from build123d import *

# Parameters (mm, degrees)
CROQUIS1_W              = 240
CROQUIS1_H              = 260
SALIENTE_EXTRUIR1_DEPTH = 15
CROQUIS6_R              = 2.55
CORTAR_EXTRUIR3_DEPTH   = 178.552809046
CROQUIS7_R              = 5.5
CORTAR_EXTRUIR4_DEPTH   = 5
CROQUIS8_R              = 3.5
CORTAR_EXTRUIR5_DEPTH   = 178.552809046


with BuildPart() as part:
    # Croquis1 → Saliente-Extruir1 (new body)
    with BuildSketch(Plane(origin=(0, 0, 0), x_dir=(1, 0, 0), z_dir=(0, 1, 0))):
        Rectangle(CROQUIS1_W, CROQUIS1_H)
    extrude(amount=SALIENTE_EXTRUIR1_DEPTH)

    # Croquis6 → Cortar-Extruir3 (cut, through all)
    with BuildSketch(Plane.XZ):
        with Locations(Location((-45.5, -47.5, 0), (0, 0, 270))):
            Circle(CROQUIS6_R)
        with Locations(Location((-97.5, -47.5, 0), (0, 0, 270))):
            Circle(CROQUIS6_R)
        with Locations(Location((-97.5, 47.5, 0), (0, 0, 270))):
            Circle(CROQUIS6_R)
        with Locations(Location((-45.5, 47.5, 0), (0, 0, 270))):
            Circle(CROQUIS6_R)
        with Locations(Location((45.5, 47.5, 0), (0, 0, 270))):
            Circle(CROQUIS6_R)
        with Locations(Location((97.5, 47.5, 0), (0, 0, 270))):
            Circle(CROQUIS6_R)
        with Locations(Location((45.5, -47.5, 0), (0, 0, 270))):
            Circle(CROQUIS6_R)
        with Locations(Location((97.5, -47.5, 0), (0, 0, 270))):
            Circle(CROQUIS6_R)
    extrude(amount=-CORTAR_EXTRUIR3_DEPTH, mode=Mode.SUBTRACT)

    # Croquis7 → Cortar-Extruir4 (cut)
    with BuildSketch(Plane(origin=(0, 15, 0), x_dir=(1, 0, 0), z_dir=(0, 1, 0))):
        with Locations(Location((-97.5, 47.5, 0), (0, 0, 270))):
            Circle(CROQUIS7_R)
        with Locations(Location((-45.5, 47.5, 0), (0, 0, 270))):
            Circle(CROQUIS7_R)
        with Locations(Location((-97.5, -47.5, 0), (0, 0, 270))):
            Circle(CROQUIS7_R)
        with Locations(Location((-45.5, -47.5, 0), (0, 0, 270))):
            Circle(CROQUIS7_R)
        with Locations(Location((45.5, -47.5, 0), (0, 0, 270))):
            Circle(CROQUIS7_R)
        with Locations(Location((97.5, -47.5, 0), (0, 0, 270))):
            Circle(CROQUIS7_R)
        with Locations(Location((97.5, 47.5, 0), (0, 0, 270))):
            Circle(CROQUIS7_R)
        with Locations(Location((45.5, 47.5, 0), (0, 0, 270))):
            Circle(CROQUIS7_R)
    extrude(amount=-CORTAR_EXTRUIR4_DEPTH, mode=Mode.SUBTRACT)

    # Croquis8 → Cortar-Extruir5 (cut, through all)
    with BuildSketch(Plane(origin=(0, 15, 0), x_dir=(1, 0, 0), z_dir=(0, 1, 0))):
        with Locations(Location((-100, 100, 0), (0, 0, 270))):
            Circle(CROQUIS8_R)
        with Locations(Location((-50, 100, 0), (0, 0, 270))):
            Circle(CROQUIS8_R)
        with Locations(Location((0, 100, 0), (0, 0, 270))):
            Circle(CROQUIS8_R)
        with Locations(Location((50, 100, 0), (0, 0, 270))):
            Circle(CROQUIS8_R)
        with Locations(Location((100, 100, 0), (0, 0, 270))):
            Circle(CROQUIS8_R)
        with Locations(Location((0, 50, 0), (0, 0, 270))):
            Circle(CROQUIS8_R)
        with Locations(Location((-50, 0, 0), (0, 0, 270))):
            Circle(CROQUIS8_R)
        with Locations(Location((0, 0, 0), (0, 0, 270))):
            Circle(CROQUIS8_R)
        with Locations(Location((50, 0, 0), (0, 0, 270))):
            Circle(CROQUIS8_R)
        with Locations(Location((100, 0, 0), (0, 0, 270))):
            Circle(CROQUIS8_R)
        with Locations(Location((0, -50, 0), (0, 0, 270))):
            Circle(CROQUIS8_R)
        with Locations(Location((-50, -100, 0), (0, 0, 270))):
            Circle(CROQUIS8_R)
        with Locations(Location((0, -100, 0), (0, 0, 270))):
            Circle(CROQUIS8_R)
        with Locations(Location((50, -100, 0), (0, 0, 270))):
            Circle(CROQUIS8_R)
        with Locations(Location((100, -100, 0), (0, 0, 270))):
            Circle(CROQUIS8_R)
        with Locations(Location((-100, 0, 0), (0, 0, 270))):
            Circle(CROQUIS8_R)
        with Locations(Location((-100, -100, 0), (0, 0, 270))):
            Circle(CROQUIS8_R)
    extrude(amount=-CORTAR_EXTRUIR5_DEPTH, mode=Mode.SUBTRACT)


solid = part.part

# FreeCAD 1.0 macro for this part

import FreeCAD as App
import Part
import Sketcher
from FreeCAD import Vector


def add_polygon(sketch, points):
    """Adds a closed chain of lines whose ends are joined by coincident constraints."""
    first, n = sketch.GeometryCount, len(points)
    for a, b in zip(points, points[1:] + points[:1]):
        sketch.addGeometry(Part.LineSegment(App.Vector(*a, 0), App.Vector(*b, 0)), False)
    for i in range(n):
        sketch.addConstraint(Sketcher.Constraint("Coincident", first + i, 2, first + (i + 1) % n, 1))

doc = App.newDocument("Part")
body = doc.addObject("PartDesign::Body", "Body")

# Sketch on XZ plane
sketch1 = body.newObject("Sketcher::SketchObject", "Sketch")
sketch1.AttachmentSupport = (doc.getObject("XZ_Plane"), [""])
sketch1.MapMode = "FlatFace"
add_polygon(sketch1, [(-120, -130), (-120, 130), (120, 130), (120, -130)])  # lines 0-3
sketch1.addConstraint([
    Sketcher.Constraint("Vertical", 0),
    Sketcher.Constraint("Horizontal", 1),
    Sketcher.Constraint("Vertical", 2),
    Sketcher.Constraint("Horizontal", 3),
    Sketcher.Constraint("Symmetric", 0, 2, 2, 2, -1, 1),
    Sketcher.Constraint("DistanceX", 1, 1, 1, 2, 240.0),
    Sketcher.Constraint("DistanceY", 0, 1, 0, 2, 260.0),
])
pad1 = body.newObject("PartDesign::Pad", "Pad")
pad1.Profile = sketch1
pad1.Length = 15
pad1.Reversed = True

# Sketch on XZ plane
sketch2 = body.newObject("Sketcher::SketchObject", "Sketch001")
sketch2.AttachmentSupport = (doc.getObject("XZ_Plane"), [""])
sketch2.MapMode = "FlatFace"
sketch2.addGeometry([
    Part.Circle(Vector(-45.5, -47.5, 0), Vector(0, 0, 1), 2.5),  # 0
    Part.Circle(Vector(-97.5, -47.5, 0), Vector(0, 0, 1), 2.5),  # 1
    Part.Circle(Vector(-97.5, 47.5, 0), Vector(0, 0, 1), 2.5),  # 2
    Part.Circle(Vector(-45.5, 47.5, 0), Vector(0, 0, 1), 2.5),  # 3
    Part.Circle(Vector(45.5, 47.5, 0), Vector(0, 0, 1), 2.5),  # 4
    Part.Circle(Vector(97.5, 47.5, 0), Vector(0, 0, 1), 2.5),  # 5
    Part.Circle(Vector(45.5, -47.5, 0), Vector(0, 0, 1), 2.5),  # 6
    Part.Circle(Vector(97.5, -47.5, 0), Vector(0, 0, 1), 2.5),  # 7
], False)
sketch2.addConstraint([
    Sketcher.Constraint("Equal", 0, 1),
    Sketcher.Constraint("Equal", 1, 2),
    Sketcher.Constraint("Equal", 2, 3),
    Sketcher.Constraint("Equal", 3, 4),
    Sketcher.Constraint("Equal", 4, 5),
    Sketcher.Constraint("Equal", 5, 6),
    Sketcher.Constraint("Equal", 6, 7),
    Sketcher.Constraint("Symmetric", 0, 3, 4, 3, -1, 1),
    Sketcher.Constraint("Symmetric", 1, 3, 5, 3, -1, 1),
    Sketcher.Constraint("Symmetric", 3, 3, 6, 3, -1, 1),
    Sketcher.Constraint("Symmetric", 2, 3, 7, 3, -1, 1),
    Sketcher.Constraint("Symmetric", 3, 3, 4, 3, -2),
    Sketcher.Constraint("Symmetric", 2, 3, 5, 3, -2),
    Sketcher.Constraint("Horizontal", 0, 3, 1, 3),
    Sketcher.Constraint("Diameter", 0, 5.1),
    Sketcher.Constraint("DistanceX", 1, 3, 0, 3, 52.0),
    Sketcher.Constraint("DistanceY", 1, 3, 2, 3, 95.0),
    Sketcher.Constraint("DistanceX", 3, 3, 4, 3, 91.0),
])
pocket1 = body.newObject("PartDesign::Pocket", "Pocket")
pocket1.Profile = sketch2
pocket1.Type = "ThroughAll"

# Sketch on XZ plane
sketch3 = body.newObject("Sketcher::SketchObject", "Sketch002")
sketch3.AttachmentSupport = (doc.getObject("XZ_Plane"), [""])
sketch3.MapMode = "FlatFace"
sketch3.AttachmentOffset = App.Placement(Vector(0, 0, -15), App.Rotation())
sketch3.addGeometry([
    Part.Circle(Vector(-98, -48, 0), Vector(0, 0, 1), 6),  # 0
    Part.Circle(Vector(-46, -48, 0), Vector(0, 0, 1), 6),  # 1
    Part.Circle(Vector(-98, 48, 0), Vector(0, 0, 1), 6),  # 2
    Part.Circle(Vector(-46, 48, 0), Vector(0, 0, 1), 6),  # 3
    Part.Circle(Vector(46, 48, 0), Vector(0, 0, 1), 6),  # 4
    Part.Circle(Vector(98, 48, 0), Vector(0, 0, 1), 6),  # 5
    Part.Circle(Vector(98, -48, 0), Vector(0, 0, 1), 6),  # 6
    Part.Circle(Vector(46, -48, 0), Vector(0, 0, 1), 6),  # 7
], False)
sketch3.addConstraint([
    Sketcher.Constraint("Equal", 0, 1),
    Sketcher.Constraint("Equal", 1, 2),
    Sketcher.Constraint("Equal", 2, 3),
    Sketcher.Constraint("Equal", 3, 4),
    Sketcher.Constraint("Equal", 4, 5),
    Sketcher.Constraint("Equal", 5, 6),
    Sketcher.Constraint("Equal", 6, 7),
    Sketcher.Constraint("Symmetric", 1, 3, 4, 3, -1, 1),
    Sketcher.Constraint("Symmetric", 0, 3, 5, 3, -1, 1),
    Sketcher.Constraint("Symmetric", 2, 3, 6, 3, -1, 1),
    Sketcher.Constraint("Symmetric", 3, 3, 7, 3, -1, 1),
    Sketcher.Constraint("Symmetric", 3, 3, 4, 3, -2),
    Sketcher.Constraint("Symmetric", 2, 3, 5, 3, -2),
    Sketcher.Constraint("Horizontal", 0, 3, 1, 3),
    Sketcher.Constraint("Diameter", 0, 11.0),
    Sketcher.Constraint("DistanceX", 0, 3, 1, 3, 52.0),
    Sketcher.Constraint("DistanceY", 0, 3, 2, 3, 95.0),
    Sketcher.Constraint("DistanceX", 3, 3, 4, 3, 91.0),
])
pocket2 = body.newObject("PartDesign::Pocket", "Pocket001")
pocket2.Profile = sketch3
pocket2.Length = 5
pocket2.Reversed = True

# Sketch on XZ plane
sketch4 = body.newObject("Sketcher::SketchObject", "Sketch003")
sketch4.AttachmentSupport = (doc.getObject("XZ_Plane"), [""])
sketch4.MapMode = "FlatFace"
sketch4.AttachmentOffset = App.Placement(Vector(0, 0, -15), App.Rotation())
sketch4.addGeometry([
    Part.Circle(Vector(-100, -100, 0), Vector(0, 0, 1), 3.5),  # 0
    Part.Circle(Vector(-50, -100, 0), Vector(0, 0, 1), 3.5),  # 1
    Part.Circle(Vector(0, -100, 0), Vector(0, 0, 1), 3.5),  # 2
    Part.Circle(Vector(50, -100, 0), Vector(0, 0, 1), 3.5),  # 3
    Part.Circle(Vector(100, -100, 0), Vector(0, 0, 1), 3.5),  # 4
    Part.Circle(Vector(0, -50, 0), Vector(0, 0, 1), 3.5),  # 5
    Part.Circle(Vector(-50, 0, 0), Vector(0, 0, 1), 3.5),  # 6
    Part.Circle(Vector(0, 0, 0), Vector(0, 0, 1), 3.5),  # 7
    Part.Circle(Vector(50, 0, 0), Vector(0, 0, 1), 3.5),  # 8
    Part.Circle(Vector(100, 0, 0), Vector(0, 0, 1), 3.5),  # 9
    Part.Circle(Vector(0, 50, 0), Vector(0, 0, 1), 3.5),  # 10
    Part.Circle(Vector(-50, 100, 0), Vector(0, 0, 1), 3.5),  # 11
    Part.Circle(Vector(0, 100, 0), Vector(0, 0, 1), 3.5),  # 12
    Part.Circle(Vector(50, 100, 0), Vector(0, 0, 1), 3.5),  # 13
    Part.Circle(Vector(100, 100, 0), Vector(0, 0, 1), 3.5),  # 14
    Part.Circle(Vector(-100, 0, 0), Vector(0, 0, 1), 3.5),  # 15
    Part.Circle(Vector(-100, 100, 0), Vector(0, 0, 1), 3.5),  # 16
], False)
sketch4.addConstraint([
    Sketcher.Constraint("Coincident", 7, 3, -1, 1),
    Sketcher.Constraint("Equal", 0, 1),
    Sketcher.Constraint("Equal", 1, 2),
    Sketcher.Constraint("Equal", 2, 3),
    Sketcher.Constraint("Equal", 3, 4),
    Sketcher.Constraint("Equal", 4, 5),
    Sketcher.Constraint("Equal", 5, 6),
    Sketcher.Constraint("Equal", 6, 7),
    Sketcher.Constraint("Equal", 7, 8),
    Sketcher.Constraint("Equal", 8, 9),
    Sketcher.Constraint("Equal", 9, 10),
    Sketcher.Constraint("Equal", 10, 11),
    Sketcher.Constraint("Equal", 11, 12),
    Sketcher.Constraint("Equal", 12, 13),
    Sketcher.Constraint("Equal", 13, 14),
    Sketcher.Constraint("Equal", 14, 15),
    Sketcher.Constraint("Equal", 15, 16),
    Sketcher.Constraint("Symmetric", 6, 3, 8, 3, -1, 1),
    Sketcher.Constraint("Symmetric", 5, 3, 10, 3, -1, 1),
    Sketcher.Constraint("Symmetric", 3, 3, 11, 3, -1, 1),
    Sketcher.Constraint("Symmetric", 2, 3, 12, 3, -1, 1),
    Sketcher.Constraint("Symmetric", 1, 3, 13, 3, -1, 1),
    Sketcher.Constraint("Symmetric", 0, 3, 14, 3, -1, 1),
    Sketcher.Constraint("Symmetric", 9, 3, 15, 3, -1, 1),
    Sketcher.Constraint("Symmetric", 4, 3, 16, 3, -1, 1),
    Sketcher.Constraint("Symmetric", 1, 3, 3, 3, -2),
    Sketcher.Constraint("Symmetric", 0, 3, 4, 3, -2),
    Sketcher.Constraint("PointOnObject", 2, 3, -2),
    Sketcher.Constraint("PointOnObject", 5, 3, -2),
    Sketcher.Constraint("PointOnObject", 6, 3, -1),
    Sketcher.Constraint("PointOnObject", 9, 3, -1),
    Sketcher.Constraint("Horizontal", 0, 3, 1, 3),
    Sketcher.Constraint("Horizontal", 1, 3, 2, 3),
    Sketcher.Constraint("Vertical", 1, 3, 6, 3),
    Sketcher.Constraint("Vertical", 4, 3, 9, 3),
    Sketcher.Constraint("Diameter", 0, 7.0),
    Sketcher.Constraint("DistanceX", 0, 3, -1, 1, 100.0),
    Sketcher.Constraint("DistanceY", 0, 3, -1, 1, 100.0),
    Sketcher.Constraint("DistanceX", 1, 3, -1, 1, 50.0),
    Sketcher.Constraint("DistanceY", 5, 3, -1, 1, 50.0),
])
pocket3 = body.newObject("PartDesign::Pocket", "Pocket002")
pocket3.Profile = sketch4
pocket3.Type = "ThroughAll"
pocket3.Reversed = True

doc.recompute()
